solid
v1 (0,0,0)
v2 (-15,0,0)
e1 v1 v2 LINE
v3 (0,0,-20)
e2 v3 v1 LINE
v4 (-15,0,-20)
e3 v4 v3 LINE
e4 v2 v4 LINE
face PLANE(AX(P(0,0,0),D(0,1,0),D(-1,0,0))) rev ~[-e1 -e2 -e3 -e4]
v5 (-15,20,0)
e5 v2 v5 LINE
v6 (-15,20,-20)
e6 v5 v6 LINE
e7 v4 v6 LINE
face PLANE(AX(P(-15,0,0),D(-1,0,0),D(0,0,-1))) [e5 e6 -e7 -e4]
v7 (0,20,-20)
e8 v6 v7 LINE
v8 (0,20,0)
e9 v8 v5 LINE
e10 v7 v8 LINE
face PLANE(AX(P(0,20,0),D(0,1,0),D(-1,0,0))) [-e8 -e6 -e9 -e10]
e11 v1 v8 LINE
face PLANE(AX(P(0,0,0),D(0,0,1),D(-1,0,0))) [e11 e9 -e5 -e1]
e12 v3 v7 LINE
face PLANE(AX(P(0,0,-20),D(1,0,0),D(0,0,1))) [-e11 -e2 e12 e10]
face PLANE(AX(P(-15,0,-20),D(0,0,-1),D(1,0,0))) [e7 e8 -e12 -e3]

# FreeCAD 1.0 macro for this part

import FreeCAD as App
import Part
import Sketcher

V = App.Vector
Q = App.Units.Quantity

doc = App.newDocument("Part")
params = doc.addObject("Spreadsheet::Sheet", "Params")
for row, (alias, value) in enumerate([
    ("sketch1_width", "15 mm"),
    ("sketch1_height", "20 mm"),
    ("pad1_length", "20 mm"),
], start=1):
    params.set(f"A{row}", alias)
    params.set(f"B{row}", "=" + value)
    params.setAlias(f"B{row}", alias)

body = doc.addObject("PartDesign::Body", "Body")

sketch1 = body.newObject("Sketcher::SketchObject", "Sketch")
sketch1.AttachmentSupport = (doc.getObject("XZ_Plane"), [""])
sketch1.MapMode = "FlatFace"
sketch1.addGeometry([
    Part.LineSegment(V(-15, 0, 0), V(0, 0, 0)),
    Part.LineSegment(V(0, 0, 0), V(0, -20, 0)),
    Part.LineSegment(V(0, -20, 0), V(-15, -20, 0)),
    Part.LineSegment(V(-15, -20, 0), V(-15, 0, 0)),
], False)
sketch1.addConstraint([
    Sketcher.Constraint("Coincident", 0, 2, 1, 1),
    Sketcher.Constraint("Coincident", 1, 2, 2, 1),
    Sketcher.Constraint("Coincident", 2, 2, 3, 1),
    Sketcher.Constraint("Coincident", 3, 2, 0, 1),
    Sketcher.Constraint("Horizontal", 0),
    Sketcher.Constraint("Vertical", 1),
    Sketcher.Constraint("Horizontal", 2),
    Sketcher.Constraint("Vertical", 3),
    Sketcher.Constraint("Coincident", 0, 2, -1, 1),
    Sketcher.Constraint("DistanceX", 0, 1, 0, 2, Q("15 mm")),
    Sketcher.Constraint("DistanceY", 1, 2, 1, 1, Q("20 mm")),
])
sketch1.setExpression("Constraints[9]", "Params.sketch1_width")
sketch1.setExpression("Constraints[10]", "Params.sketch1_height")
pad1 = body.newObject("PartDesign::Pad", "Pad")
pad1.Profile = sketch1
pad1.setExpression("Length", "Params.pad1_length")
pad1.Reversed = True

doc.recompute()
